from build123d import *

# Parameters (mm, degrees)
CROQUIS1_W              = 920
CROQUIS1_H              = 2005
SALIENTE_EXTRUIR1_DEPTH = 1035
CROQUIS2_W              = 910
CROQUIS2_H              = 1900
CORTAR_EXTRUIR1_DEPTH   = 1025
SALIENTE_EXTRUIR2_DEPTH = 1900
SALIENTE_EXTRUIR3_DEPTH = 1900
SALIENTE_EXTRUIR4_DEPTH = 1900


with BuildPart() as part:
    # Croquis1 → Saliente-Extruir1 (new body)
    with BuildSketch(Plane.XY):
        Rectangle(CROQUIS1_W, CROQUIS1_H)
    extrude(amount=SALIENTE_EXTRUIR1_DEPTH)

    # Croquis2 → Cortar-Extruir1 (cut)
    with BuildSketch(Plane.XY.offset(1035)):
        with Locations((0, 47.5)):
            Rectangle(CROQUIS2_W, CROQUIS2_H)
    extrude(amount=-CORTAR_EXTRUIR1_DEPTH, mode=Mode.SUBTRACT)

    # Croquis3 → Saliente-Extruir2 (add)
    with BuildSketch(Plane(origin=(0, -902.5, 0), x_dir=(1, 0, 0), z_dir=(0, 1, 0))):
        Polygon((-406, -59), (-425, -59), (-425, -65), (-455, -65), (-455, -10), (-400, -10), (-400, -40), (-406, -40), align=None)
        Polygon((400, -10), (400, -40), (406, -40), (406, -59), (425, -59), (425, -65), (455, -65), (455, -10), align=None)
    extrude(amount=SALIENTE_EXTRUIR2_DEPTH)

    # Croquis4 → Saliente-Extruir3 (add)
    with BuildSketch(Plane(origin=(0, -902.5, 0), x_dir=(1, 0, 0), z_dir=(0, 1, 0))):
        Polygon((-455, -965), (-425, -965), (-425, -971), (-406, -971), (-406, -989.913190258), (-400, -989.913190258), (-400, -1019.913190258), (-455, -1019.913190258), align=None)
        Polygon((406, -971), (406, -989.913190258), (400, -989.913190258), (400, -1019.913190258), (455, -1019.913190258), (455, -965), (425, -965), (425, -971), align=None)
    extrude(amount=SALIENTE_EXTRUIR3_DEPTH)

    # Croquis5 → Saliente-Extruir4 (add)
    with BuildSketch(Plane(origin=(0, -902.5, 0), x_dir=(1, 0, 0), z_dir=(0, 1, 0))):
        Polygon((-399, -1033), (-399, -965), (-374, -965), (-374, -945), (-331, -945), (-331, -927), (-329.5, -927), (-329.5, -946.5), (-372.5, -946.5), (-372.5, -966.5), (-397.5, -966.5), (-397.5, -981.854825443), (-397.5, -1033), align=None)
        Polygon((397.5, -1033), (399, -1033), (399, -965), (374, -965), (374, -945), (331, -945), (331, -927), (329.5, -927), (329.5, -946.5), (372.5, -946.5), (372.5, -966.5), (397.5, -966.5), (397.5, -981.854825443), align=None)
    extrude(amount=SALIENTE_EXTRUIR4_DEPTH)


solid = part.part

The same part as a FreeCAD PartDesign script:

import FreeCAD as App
import Part
import Sketcher
Q = App.Units.Quantity

doc = App.newDocument("Part")
body = doc.addObject("PartDesign::Body", "Body")

# Sketch on XY plane
sketch1 = body.newObject("Sketcher::SketchObject", "Sketch")
sketch1.AttachmentSupport = (doc.getObject("XY_Plane"), [""])
sketch1.MapMode = "FlatFace"
sketch1.addGeometry([
    Part.LineSegment(App.Vector(-460, 1002.5, 0), App.Vector(-460, -1002.5, 0)),
    Part.LineSegment(App.Vector(-460, -1002.5, 0), App.Vector(460, -1002.5, 0)),
    Part.LineSegment(App.Vector(460, -1002.5, 0), App.Vector(460, 1002.5, 0)),
    Part.LineSegment(App.Vector(460, 1002.5, 0), App.Vector(-460, 1002.5, 0)),
], False)
sketch1.addConstraint([
    Sketcher.Constraint("Coincident", 0, 2, 1, 1),
    Sketcher.Constraint("Coincident", 1, 2, 2, 1),
    Sketcher.Constraint("Coincident", 2, 2, 3, 1),
    Sketcher.Constraint("Coincident", 3, 2, 0, 1),
    Sketcher.Constraint("Vertical", 0),
    Sketcher.Constraint("Horizontal", 1),
    Sketcher.Constraint("Vertical", 2),
    Sketcher.Constraint("Horizontal", 3),
    Sketcher.Constraint("Symmetric", 0, 2, 2, 2, -1, 1),
    Sketcher.Constraint("DistanceX", 1, 1, 1, 2, Q("920 mm")),
    Sketcher.Constraint("DistanceY", 0, 2, 0, 1, Q("2005 mm")),
])
pad1 = body.newObject("PartDesign::Pad", "Pad")
pad1.Profile = sketch1
pad1.Length = 1035

# Sketch on XY plane
sketch2 = body.newObject("Sketcher::SketchObject", "Sketch001")
sketch2.AttachmentSupport = (doc.getObject("XY_Plane"), [""])
sketch2.MapMode = "FlatFace"
sketch2.AttachmentOffset = App.Placement(App.Vector(0, 0, 1035), App.Rotation())
sketch2.addGeometry([
    Part.LineSegment(App.Vector(-455, 997.5, 0), App.Vector(-455, -902.5, 0)),
    Part.LineSegment(App.Vector(-455, -902.5, 0), App.Vector(455, -902.5, 0)),
    Part.LineSegment(App.Vector(455, -902.5, 0), App.Vector(455, 997.5, 0)),
    Part.LineSegment(App.Vector(455, 997.5, 0), App.Vector(-455, 997.5, 0)),
], False)
sketch2.addConstraint([
    Sketcher.Constraint("Coincident", 0, 2, 1, 1),
    Sketcher.Constraint("Coincident", 1, 2, 2, 1),
    Sketcher.Constraint("Coincident", 2, 2, 3, 1),
    Sketcher.Constraint("Coincident", 3, 2, 0, 1),
    Sketcher.Constraint("Vertical", 0),
    Sketcher.Constraint("Horizontal", 1),
    Sketcher.Constraint("Vertical", 2),
    Sketcher.Constraint("Horizontal", 3),
    Sketcher.Constraint("DistanceX", 1, 1, 1, 2, Q("910 mm")),
    Sketcher.Constraint("DistanceY", 0, 2, 0, 1, Q("1900 mm")),
    Sketcher.Constraint("DistanceX", 0, 2, -1, 1, Q("455 mm")),
    Sketcher.Constraint("DistanceY", 0, 2, -1, 1, Q("902.5 mm")),
])
pocket1 = body.newObject("PartDesign::Pocket", "Pocket")
pocket1.Profile = sketch2
pocket1.Length = 1025

# Sketch on XZ plane
sketch3 = body.newObject("Sketcher::SketchObject", "Sketch002")
sketch3.AttachmentSupport = (doc.getObject("XZ_Plane"), [""])
sketch3.MapMode = "FlatFace"
sketch3.AttachmentOffset = App.Placement(App.Vector(0, 0, 902.5), App.Rotation())
sketch3.addGeometry([
    Part.LineSegment(App.Vector(-425, 59, 0), App.Vector(-406, 59, 0)),  # 0
    Part.LineSegment(App.Vector(-406, 59, 0), App.Vector(-406, 40, 0)),  # 1
    Part.LineSegment(App.Vector(-406, 40, 0), App.Vector(-400, 40, 0)),  # 2
    Part.LineSegment(App.Vector(-400, 40, 0), App.Vector(-400, 10, 0)),  # 3
    Part.LineSegment(App.Vector(-400, 10, 0), App.Vector(-455, 10, 0)),  # 4
    Part.LineSegment(App.Vector(-455, 10, 0), App.Vector(-455, 65, 0)),  # 5
    Part.LineSegment(App.Vector(-455, 65, 0), App.Vector(-425, 65, 0)),  # 6
    Part.LineSegment(App.Vector(-425, 65, 0), App.Vector(-425, 59, 0)),  # 7
    Part.LineSegment(App.Vector(400, 10, 0), App.Vector(400, 40, 0)),  # 8
    Part.LineSegment(App.Vector(400, 40, 0), App.Vector(406, 40, 0)),  # 9
    Part.LineSegment(App.Vector(406, 40, 0), App.Vector(406, 59, 0)),  # 10
    Part.LineSegment(App.Vector(406, 59, 0), App.Vector(425, 59, 0)),  # 11
    Part.LineSegment(App.Vector(425, 59, 0), App.Vector(425, 65, 0)),  # 12
    Part.LineSegment(App.Vector(425, 65, 0), App.Vector(455, 65, 0)),  # 13
    Part.LineSegment(App.Vector(455, 65, 0), App.Vector(455, 10, 0)),  # 14
    Part.LineSegment(App.Vector(455, 10, 0), App.Vector(400, 10, 0)),  # 15
], False)
sketch3.addConstraint([
    Sketcher.Constraint("Coincident", 0, 2, 1, 1),
    Sketcher.Constraint("Coincident", 1, 2, 2, 1),
    Sketcher.Constraint("Coincident", 2, 2, 3, 1),
    Sketcher.Constraint("Coincident", 3, 2, 4, 1),
    Sketcher.Constraint("Coincident", 4, 2, 5, 1),
    Sketcher.Constraint("Coincident", 5, 2, 6, 1),
    Sketcher.Constraint("Coincident", 6, 2, 7, 1),
    Sketcher.Constraint("Coincident", 7, 2, 0, 1),
    Sketcher.Constraint("Coincident", 8, 2, 9, 1),
    Sketcher.Constraint("Coincident", 9, 2, 10, 1),
    Sketcher.Constraint("Coincident", 10, 2, 11, 1),
    Sketcher.Constraint("Coincident", 11, 2, 12, 1),
    Sketcher.Constraint("Coincident", 12, 2, 13, 1),
    Sketcher.Constraint("Coincident", 13, 2, 14, 1),
    Sketcher.Constraint("Coincident", 14, 2, 15, 1),
    Sketcher.Constraint("Coincident", 15, 2, 8, 1),
    Sketcher.Constraint("Horizontal", 0),
    Sketcher.Constraint("Vertical", 1),
    Sketcher.Constraint("Horizontal", 2),
    Sketcher.Constraint("Vertical", 3),
    Sketcher.Constraint("Horizontal", 4),
    Sketcher.Constraint("Vertical", 5),
    Sketcher.Constraint("Horizontal", 6),
    Sketcher.Constraint("Vertical", 7),
    Sketcher.Constraint("Vertical", 8),
    Sketcher.Constraint("Horizontal", 9),
    Sketcher.Constraint("Vertical", 10),
    Sketcher.Constraint("Horizontal", 11),
    Sketcher.Constraint("Vertical", 12),
    Sketcher.Constraint("Horizontal", 13),
    Sketcher.Constraint("Vertical", 14),
    Sketcher.Constraint("Horizontal", 15),
    Sketcher.Constraint("Symmetric", 2, 2, 8, 2, -2),
    Sketcher.Constraint("Symmetric", 0, 2, 10, 2, -2),
    Sketcher.Constraint("Symmetric", 6, 2, 12, 2, -2),
    Sketcher.Constraint("Symmetric", 4, 2, 14, 2, -2),
    Sketcher.Constraint("Equal", 11, 1),
    Sketcher.Constraint("Equal", 13, 3),
    Sketcher.Constraint("Equal", 15, 5),
    Sketcher.Constraint("DistanceX", 0, 1, 0, 2, Q("19 mm")),
    Sketcher.Constraint("DistanceX", 2, 1, 2, 2, Q("6 mm")),
    Sketcher.Constraint("DistanceX", 4, 2, 4, 1, Q("55 mm")),
    Sketcher.Constraint("DistanceX", 0, 2, -1, 1, Q("406 mm")),
    Sketcher.Constraint("DistanceY", -1, 1, 0, 2, Q("59 mm")),
])
pad2 = body.newObject("PartDesign::Pad", "Pad001")
pad2.Profile = sketch3
pad2.Length = 1900
pad2.Reversed = True

# Sketch on XZ plane
sketch4 = body.newObject("Sketcher::SketchObject", "Sketch003")
sketch4.AttachmentSupport = (doc.getObject("XZ_Plane"), [""])
sketch4.MapMode = "FlatFace"
sketch4.AttachmentOffset = App.Placement(App.Vector(0, 0, 902.5), App.Rotation())
sketch4.addGeometry([
    Part.LineSegment(App.Vector(-425, 965, 0), App.Vector(-455, 965, 0)),  # 0
    Part.LineSegment(App.Vector(-455, 965, 0), App.Vector(-455, 1019.91319, 0)),  # 1
    Part.LineSegment(App.Vector(-455, 1019.91319, 0), App.Vector(-400, 1019.91319, 0)),  # 2
    Part.LineSegment(App.Vector(-400, 1019.91319, 0), App.Vector(-400, 989.91319, 0)),  # 3
    Part.LineSegment(App.Vector(-400, 989.91319, 0), App.Vector(-406, 989.91319, 0)),  # 4
    Part.LineSegment(App.Vector(-406, 989.91319, 0), App.Vector(-406, 971, 0)),  # 5
    Part.LineSegment(App.Vector(-406, 971, 0), App.Vector(-425, 971, 0)),  # 6
    Part.LineSegment(App.Vector(-425, 971, 0), App.Vector(-425, 965, 0)),  # 7
    Part.LineSegment(App.Vector(406, 971, 0), App.Vector(406, 989.91319, 0)),  # 8
    Part.LineSegment(App.Vector(406, 989.91319, 0), App.Vector(400, 989.91319, 0)),  # 9
    Part.LineSegment(App.Vector(400, 989.91319, 0), App.Vector(400, 1019.91319, 0)),  # 10
    Part.LineSegment(App.Vector(400, 1019.91319, 0), App.Vector(455, 1019.91319, 0)),  # 11
    Part.LineSegment(App.Vector(455, 1019.91319, 0), App.Vector(455, 965, 0)),  # 12
    Part.LineSegment(App.Vector(455, 965, 0), App.Vector(425, 965, 0)),  # 13
    Part.LineSegment(App.Vector(425, 965, 0), App.Vector(425, 971, 0)),  # 14
    Part.LineSegment(App.Vector(425, 971, 0), App.Vector(406, 971, 0)),  # 15
], False)
sketch4.addConstraint([
    Sketcher.Constraint("Coincident", 0, 2, 1, 1),
    Sketcher.Constraint("Coincident", 1, 2, 2, 1),
    Sketcher.Constraint("Coincident", 2, 2, 3, 1),
    Sketcher.Constraint("Coincident", 3, 2, 4, 1),
    Sketcher.Constraint("Coincident", 4, 2, 5, 1),
    Sketcher.Constraint("Coincident", 5, 2, 6, 1),
    Sketcher.Constraint("Coincident", 6, 2, 7, 1),
    Sketcher.Constraint("Coincident", 7, 2, 0, 1),
    Sketcher.Constraint("Coincident", 8, 2, 9, 1),
    Sketcher.Constraint("Coincident", 9, 2, 10, 1),
    Sketcher.Constraint("Coincident", 10, 2, 11, 1),
    Sketcher.Constraint("Coincident", 11, 2, 12, 1),
    Sketcher.Constraint("Coincident", 12, 2, 13, 1),
    Sketcher.Constraint("Coincident", 13, 2, 14, 1),
    Sketcher.Constraint("Coincident", 14, 2, 15, 1),
    Sketcher.Constraint("Coincident", 15, 2, 8, 1),
    Sketcher.Constraint("Horizontal", 0),
    Sketcher.Constraint("Vertical", 1),
    Sketcher.Constraint("Horizontal", 2),
    Sketcher.Constraint("Vertical", 3),
    Sketcher.Constraint("Horizontal", 4),
    Sketcher.Constraint("Vertical", 5),
    Sketcher.Constraint("Horizontal", 6),
    Sketcher.Constraint("Vertical", 7),
    Sketcher.Constraint("Vertical", 8),
    Sketcher.Constraint("Horizontal", 9),
    Sketcher.Constraint("Vertical", 10),
    Sketcher.Constraint("Horizontal", 11),
    Sketcher.Constraint("Vertical", 12),
    Sketcher.Constraint("Horizontal", 13),
    Sketcher.Constraint("Vertical", 14),
    Sketcher.Constraint("Horizontal", 15),
    Sketcher.Constraint("Symmetric", 4, 2, 8, 2, -2),
    Sketcher.Constraint("Symmetric", 2, 2, 10, 2, -2),
    Sketcher.Constraint("Symmetric", 0, 2, 12, 2, -2),
    Sketcher.Constraint("Symmetric", 6, 2, 14, 2, -2),
    Sketcher.Constraint("Equal", 13, 3),
    Sketcher.Constraint("Equal", 9, 7),
    Sketcher.Constraint("DistanceX", 0, 2, 0, 1, Q("30 mm")),
    Sketcher.Constraint("DistanceX", 2, 1, 2, 2, Q("55 mm")),
    Sketcher.Constraint("DistanceX", 4, 2, 4, 1, Q("6 mm")),
    Sketcher.Constraint("DistanceX", 0, 2, -1, 1, Q("455 mm")),
    Sketcher.Constraint("DistanceY", -1, 1, 0, 2, Q("965 mm")),
    Sketcher.Constraint("DistanceY", 1, 1, 1, 2, Q("54.91319 mm")),
])
pad3 = body.newObject("PartDesign::Pad", "Pad002")
pad3.Profile = sketch4
pad3.Length = 1900
pad3.Reversed = True

# Sketch on XZ plane
sketch5 = body.newObject("Sketcher::SketchObject", "Sketch004")
sketch5.AttachmentSupport = (doc.getObject("XZ_Plane"), [""])
sketch5.MapMode = "FlatFace"
sketch5.AttachmentOffset = App.Placement(App.Vector(0, 0, 902.5), App.Rotation())
sketch5.addGeometry([
    Part.LineSegment(App.Vector(-399, 965, 0), App.Vector(-399, 1033, 0)),  # 0
    Part.LineSegment(App.Vector(-399, 1033, 0), App.Vector(-397.5, 1033, 0)),  # 1
    Part.LineSegment(App.Vector(-397.5, 1033, 0), App.Vector(-397.5, 966.5, 0)),  # 2
    Part.LineSegment(App.Vector(-397.5, 966.5, 0), App.Vector(-372.5, 966.5, 0)),  # 3
    Part.LineSegment(App.Vector(-372.5, 966.5, 0), App.Vector(-372.5, 946.5, 0)),  # 4
    Part.LineSegment(App.Vector(-372.5, 946.5, 0), App.Vector(-329.5, 946.5, 0)),  # 5
    Part.LineSegment(App.Vector(-329.5, 946.5, 0), App.Vector(-329.5, 927, 0)),  # 6
    Part.LineSegment(App.Vector(-329.5, 927, 0), App.Vector(-331, 927, 0)),  # 7
    Part.LineSegment(App.Vector(-331, 927, 0), App.Vector(-331, 945, 0)),  # 8
    Part.LineSegment(App.Vector(-331, 945, 0), App.Vector(-374, 945, 0)),  # 9
    Part.LineSegment(App.Vector(-374, 945, 0), App.Vector(-374, 965, 0)),  # 10
    Part.LineSegment(App.Vector(-374, 965, 0), App.Vector(-399, 965, 0)),  # 11
    Part.LineSegment(App.Vector(397.5, 1033, 0), App.Vector(399, 1033, 0)),  # 12
    Part.LineSegment(App.Vector(399, 1033, 0), App.Vector(399, 965, 0)),  # 13
    Part.LineSegment(App.Vector(399, 965, 0), App.Vector(374, 965, 0)),  # 14
    Part.LineSegment(App.Vector(374, 965, 0), App.Vector(374, 945, 0)),  # 15
    Part.LineSegment(App.Vector(374, 945, 0), App.Vector(331, 945, 0)),  # 16
    Part.LineSegment(App.Vector(331, 945, 0), App.Vector(331, 927, 0)),  # 17
    Part.LineSegment(App.Vector(331, 927, 0), App.Vector(329.5, 927, 0)),  # 18
    Part.LineSegment(App.Vector(329.5, 927, 0), App.Vector(329.5, 946.5, 0)),  # 19
    Part.LineSegment(App.Vector(329.5, 946.5, 0), App.Vector(372.5, 946.5, 0)),  # 20
    Part.LineSegment(App.Vector(372.5, 946.5, 0), App.Vector(372.5, 966.5, 0)),  # 21
    Part.LineSegment(App.Vector(372.5, 966.5, 0), App.Vector(397.5, 966.5, 0)),  # 22
    Part.LineSegment(App.Vector(397.5, 966.5, 0), App.Vector(397.5, 1033, 0)),  # 23
], False)
sketch5.addConstraint([
    Sketcher.Constraint("Coincident", 0, 2, 1, 1),
    Sketcher.Constraint("Coincident", 1, 2, 2, 1),
    Sketcher.Constraint("Coincident", 2, 2, 3, 1),
    Sketcher.Constraint("Coincident", 3, 2, 4, 1),
    Sketcher.Constraint("Coincident", 4, 2, 5, 1),
    Sketcher.Constraint("Coincident", 5, 2, 6, 1),
    Sketcher.Constraint("Coincident", 6, 2, 7, 1),
    Sketcher.Constraint("Coincident", 7, 2, 8, 1),
    Sketcher.Constraint("Coincident", 8, 2, 9, 1),
    Sketcher.Constraint("Coincident", 9, 2, 10, 1),
    Sketcher.Constraint("Coincident", 10, 2, 11, 1),
    Sketcher.Constraint("Coincident", 11, 2, 0, 1),
    Sketcher.Constraint("Coincident", 12, 2, 13, 1),
    Sketcher.Constraint("Coincident", 13, 2, 14, 1),
    Sketcher.Constraint("Coincident", 14, 2, 15, 1),
    Sketcher.Constraint("Coincident", 15, 2, 16, 1),
    Sketcher.Constraint("Coincident", 16, 2, 17, 1),
    Sketcher.Constraint("Coincident", 17, 2, 18, 1),
    Sketcher.Constraint("Coincident", 18, 2, 19, 1),
    Sketcher.Constraint("Coincident", 19, 2, 20, 1),
    Sketcher.Constraint("Coincident", 20, 2, 21, 1),
    Sketcher.Constraint("Coincident", 21, 2, 22, 1),
    Sketcher.Constraint("Coincident", 22, 2, 23, 1),
    Sketcher.Constraint("Coincident", 23, 2, 12, 1),
    Sketcher.Constraint("Vertical", 0),
    Sketcher.Constraint("Horizontal", 1),
    Sketcher.Constraint("Vertical", 2),
    Sketcher.Constraint("Horizontal", 3),
    Sketcher.Constraint("Vertical", 4),
    Sketcher.Constraint("Horizontal", 5),
    Sketcher.Constraint("Vertical", 6),
    Sketcher.Constraint("Horizontal", 7),
    Sketcher.Constraint("Vertical", 8),
    Sketcher.Constraint("Horizontal", 9),
    Sketcher.Constraint("Vertical", 10),
    Sketcher.Constraint("Horizontal", 11),
    Sketcher.Constraint("Horizontal", 12),
    Sketcher.Constraint("Vertical", 13),
    Sketcher.Constraint("Horizontal", 14),
    Sketcher.Constraint("Vertical", 15),
    Sketcher.Constraint("Horizontal", 16),
    Sketcher.Constraint("Vertical", 17),
    Sketcher.Constraint("Horizontal", 18),
    Sketcher.Constraint("Vertical", 19),
    Sketcher.Constraint("Horizontal", 20),
    Sketcher.Constraint("Vertical", 21),
    Sketcher.Constraint("Horizontal", 22),
    Sketcher.Constraint("Vertical", 23),
    Sketcher.Constraint("Symmetric", 0, 2, 12, 2, -2),
    Sketcher.Constraint("Symmetric", 10, 2, 14, 2, -2),
    Sketcher.Constraint("Symmetric", 8, 2, 16, 2, -2),
    Sketcher.Constraint("Symmetric", 6, 2, 18, 2, -2),
    Sketcher.Constraint("Symmetric", 4, 2, 20, 2, -2),
    Sketcher.Constraint("Symmetric", 2, 2, 22, 2, -2),
    Sketcher.Constraint("Equal", 1, 7),
    Sketcher.Constraint("Equal", 5, 9),
    Sketcher.Constraint("Equal", 4, 10),
    Sketcher.Constraint("DistanceX", 3, 1, 3, 2, Q("25 mm")),
    Sketcher.Constraint("DistanceX", 5, 1, 5, 2, Q("43 mm")),
    Sketcher.Constraint("DistanceY", 0, 1, 0, 2, Q("68 mm")),
    Sketcher.Constraint("DistanceY", 4, 2, 4, 1, Q("20 mm")),
    Sketcher.Constraint("DistanceY", 8, 1, 8, 2, Q("18 mm")),
    Sketcher.Constraint("DistanceX", 1, 1, 1, 2, Q("1.5 mm")),
    Sketcher.Constraint("DistanceY", 2, 2, 2, 1, Q("66.5 mm")),
    Sketcher.Constraint("DistanceX", 0, 2, -1, 1, Q("399 mm")),
    Sketcher.Constraint("DistanceY", -1, 1, 0, 2, Q("1033 mm")),
])
pad4 = body.newObject("PartDesign::Pad", "Pad003")
pad4.Profile = sketch5
pad4.Length = 1900
pad4.Reversed = True

doc.recompute()
